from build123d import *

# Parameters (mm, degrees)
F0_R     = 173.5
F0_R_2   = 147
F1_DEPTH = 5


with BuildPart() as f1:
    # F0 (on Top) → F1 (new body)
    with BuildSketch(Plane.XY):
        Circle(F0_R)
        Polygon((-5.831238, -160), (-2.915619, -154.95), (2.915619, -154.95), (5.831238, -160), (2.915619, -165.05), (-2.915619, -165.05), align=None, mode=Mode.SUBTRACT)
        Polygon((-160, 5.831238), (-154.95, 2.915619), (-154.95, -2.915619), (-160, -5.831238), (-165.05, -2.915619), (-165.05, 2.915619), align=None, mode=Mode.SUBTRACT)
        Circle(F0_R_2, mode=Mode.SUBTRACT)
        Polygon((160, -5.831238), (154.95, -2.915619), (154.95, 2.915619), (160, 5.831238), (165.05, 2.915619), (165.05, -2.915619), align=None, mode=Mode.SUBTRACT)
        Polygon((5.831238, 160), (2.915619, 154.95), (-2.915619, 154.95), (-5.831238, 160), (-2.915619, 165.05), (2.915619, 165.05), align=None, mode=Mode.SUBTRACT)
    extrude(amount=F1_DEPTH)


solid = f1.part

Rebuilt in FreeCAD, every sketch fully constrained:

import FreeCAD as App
import Part
import Sketcher
Q = App.Units.Quantity

doc = App.newDocument("Part")
body = doc.addObject("PartDesign::Body", "Body")

# Sketch on XY plane
sketch1 = doc.addObject("Sketcher::SketchObject", "Sketch")
body.addObject(sketch1)
sketch1.AttachmentSupport = (doc.XY_Plane, [""])
sketch1.MapMode = "FlatFace"
sketch1.addGeometry([
    Part.Circle(App.Vector(0, 0, 0), App.Vector(0, 0, 1), 173.5),  # 0
    Part.LineSegment(App.Vector(-2.915619, -165.05, 0), App.Vector(-5.831238, -160, 0)),  # 1
    Part.LineSegment(App.Vector(-5.831238, -160, 0), App.Vector(-2.915619, -154.95, 0)),  # 2
    Part.LineSegment(App.Vector(-2.915619, -154.95, 0), App.Vector(2.915619, -154.95, 0)),  # 3
    Part.LineSegment(App.Vector(2.915619, -154.95, 0), App.Vector(5.831238, -160, 0)),  # 4
    Part.LineSegment(App.Vector(5.831238, -160, 0), App.Vector(2.915619, -165.05, 0)),  # 5
    Part.LineSegment(App.Vector(2.915619, -165.05, 0), App.Vector(-2.915619, -165.05, 0)),  # 6
    Part.LineSegment(App.Vector(-165.05, 2.915619, 0), App.Vector(-160, 5.831238, 0)),  # 7
    Part.LineSegment(App.Vector(-160, 5.831238, 0), App.Vector(-154.95, 2.915619, 0)),  # 8
    Part.LineSegment(App.Vector(-154.95, 2.915619, 0), App.Vector(-154.95, -2.915619, 0)),  # 9
    Part.LineSegment(App.Vector(-154.95, -2.915619, 0), App.Vector(-160, -5.831238, 0)),  # 10
    Part.LineSegment(App.Vector(-160, -5.831238, 0), App.Vector(-165.05, -2.915619, 0)),  # 11
    Part.LineSegment(App.Vector(-165.05, -2.915619, 0), App.Vector(-165.05, 2.915619, 0)),  # 12
    Part.Circle(App.Vector(0, 0, 0), App.Vector(0, 0, 1), 147),  # 13
    Part.LineSegment(App.Vector(165.05, -2.915619, 0), App.Vector(160, -5.831238, 0)),  # 14
    Part.LineSegment(App.Vector(160, -5.831238, 0), App.Vector(154.95, -2.915619, 0)),  # 15
    Part.LineSegment(App.Vector(154.95, -2.915619, 0), App.Vector(154.95, 2.915619, 0)),  # 16
    Part.LineSegment(App.Vector(154.95, 2.915619, 0), App.Vector(160, 5.831238, 0)),  # 17
    Part.LineSegment(App.Vector(160, 5.831238, 0), App.Vector(165.05, 2.915619, 0)),  # 18
    Part.LineSegment(App.Vector(165.05, 2.915619, 0), App.Vector(165.05, -2.915619, 0)),  # 19
    Part.LineSegment(App.Vector(2.915619, 165.05, 0), App.Vector(5.831238, 160, 0)),  # 20
    Part.LineSegment(App.Vector(5.831238, 160, 0), App.Vector(2.915619, 154.95, 0)),  # 21
    Part.LineSegment(App.Vector(2.915619, 154.95, 0), App.Vector(-2.915619, 154.95, 0)),  # 22
    Part.LineSegment(App.Vector(-2.915619, 154.95, 0), App.Vector(-5.831238, 160, 0)),  # 23
    Part.LineSegment(App.Vector(-5.831238, 160, 0), App.Vector(-2.915619, 165.05, 0)),  # 24
    Part.LineSegment(App.Vector(-2.915619, 165.05, 0), App.Vector(2.915619, 165.05, 0)),  # 25
], False)
sketch1.addConstraint([
    Sketcher.Constraint("Coincident", 1, 2, 2, 1),
    Sketcher.Constraint("Coincident", 2, 2, 3, 1),
    Sketcher.Constraint("Coincident", 3, 2, 4, 1),
    Sketcher.Constraint("Coincident", 4, 2, 5, 1),
    Sketcher.Constraint("Coincident", 5, 2, 6, 1),
    Sketcher.Constraint("Coincident", 6, 2, 1, 1),
    Sketcher.Constraint("Coincident", 7, 2, 8, 1),
    Sketcher.Constraint("Coincident", 8, 2, 9, 1),
    Sketcher.Constraint("Coincident", 9, 2, 10, 1),
    Sketcher.Constraint("Coincident", 10, 2, 11, 1),
    Sketcher.Constraint("Coincident", 11, 2, 12, 1),
    Sketcher.Constraint("Coincident", 12, 2, 7, 1),
    Sketcher.Constraint("Coincident", 14, 2, 15, 1),
    Sketcher.Constraint("Coincident", 15, 2, 16, 1),
    Sketcher.Constraint("Coincident", 16, 2, 17, 1),
    Sketcher.Constraint("Coincident", 17, 2, 18, 1),
    Sketcher.Constraint("Coincident", 18, 2, 19, 1),
    Sketcher.Constraint("Coincident", 19, 2, 14, 1),
    Sketcher.Constraint("Coincident", 20, 2, 21, 1),
    Sketcher.Constraint("Coincident", 21, 2, 22, 1),
    Sketcher.Constraint("Coincident", 22, 2, 23, 1),
    Sketcher.Constraint("Coincident", 23, 2, 24, 1),
    Sketcher.Constraint("Coincident", 24, 2, 25, 1),
    Sketcher.Constraint("Coincident", 25, 2, 20, 1),
    Sketcher.Constraint("Horizontal", 3),
    Sketcher.Constraint("Horizontal", 6),
    Sketcher.Constraint("Vertical", 9),
    Sketcher.Constraint("Vertical", 12),
    Sketcher.Constraint("Vertical", 16),
    Sketcher.Constraint("Vertical", 19),
    Sketcher.Constraint("Horizontal", 22),
    Sketcher.Constraint("Horizontal", 25),
    Sketcher.Constraint("Coincident", 0, 3, -1, 1),
    Sketcher.Constraint("Coincident", 13, 3, -1, 1),
    Sketcher.Constraint("Symmetric", 7, 2, 14, 2, -1, 1),
    Sketcher.Constraint("Symmetric", 8, 2, 15, 2, -1, 1),
    Sketcher.Constraint("Symmetric", 10, 2, 17, 2, -1, 1),
    Sketcher.Constraint("Symmetric", 11, 2, 18, 2, -1, 1),
    Sketcher.Constraint("Symmetric", 1, 2, 20, 2, -1, 1),
    Sketcher.Constraint("Symmetric", 2, 2, 21, 2, -1, 1),
    Sketcher.Constraint("Symmetric", 4, 2, 23, 2, -1, 1),
    Sketcher.Constraint("Symmetric", 5, 2, 24, 2, -1, 1),
    Sketcher.Constraint("Symmetric", 1, 2, 4, 2, -2),
    Sketcher.Constraint("Symmetric", 10, 2, 14, 2, -2),
    Sketcher.Constraint("Parallel", 1, 4),
    Sketcher.Constraint("Parallel", 2, 5),
    Sketcher.Constraint("Perpendicular", 4, 7),
    Sketcher.Constraint("Perpendicular", 5, 8),
    Sketcher.Constraint("Parallel", 7, 10),
    Sketcher.Constraint("Parallel", 8, 11),
    Sketcher.Constraint("Parallel", 10, 14),
    Sketcher.Constraint("Parallel", 14, 17),
    Sketcher.Constraint("Perpendicular", 17, 20),
    Sketcher.Constraint("Parallel", 20, 23),
    Sketcher.Constraint("Horizontal", 9, 2, 11, 2),
    Sketcher.Constraint("Horizontal", 8, 2, 12, 2),
    Sketcher.Constraint("Vertical", 3, 2, 5, 2),
    Sketcher.Constraint("Equal", 25, 9),
    Sketcher.Constraint("Equal", 5, 7),
    Sketcher.Constraint("Diameter", 0, 347.0),
    Sketcher.Constraint("Diameter", 13, 294.0),
    Sketcher.Constraint("Angle", 1, Q("120.000001 deg")),
    Sketcher.Constraint("DistanceY", 1, 2, -1, 1, 160.0),
    Sketcher.Constraint("DistanceX", 7, 2, -1, 1, 160.0),
    Sketcher.Constraint("DistanceY", 5, 2, 3, 2, 10.1),
    Sketcher.Constraint("DistanceX", 3, 1, 3, 2, 5.831238),
])
pad1 = doc.addObject("PartDesign::Pad", "Pad")
body.addObject(pad1)
pad1.Profile = sketch1
pad1.Length = 5

doc.recompute()
